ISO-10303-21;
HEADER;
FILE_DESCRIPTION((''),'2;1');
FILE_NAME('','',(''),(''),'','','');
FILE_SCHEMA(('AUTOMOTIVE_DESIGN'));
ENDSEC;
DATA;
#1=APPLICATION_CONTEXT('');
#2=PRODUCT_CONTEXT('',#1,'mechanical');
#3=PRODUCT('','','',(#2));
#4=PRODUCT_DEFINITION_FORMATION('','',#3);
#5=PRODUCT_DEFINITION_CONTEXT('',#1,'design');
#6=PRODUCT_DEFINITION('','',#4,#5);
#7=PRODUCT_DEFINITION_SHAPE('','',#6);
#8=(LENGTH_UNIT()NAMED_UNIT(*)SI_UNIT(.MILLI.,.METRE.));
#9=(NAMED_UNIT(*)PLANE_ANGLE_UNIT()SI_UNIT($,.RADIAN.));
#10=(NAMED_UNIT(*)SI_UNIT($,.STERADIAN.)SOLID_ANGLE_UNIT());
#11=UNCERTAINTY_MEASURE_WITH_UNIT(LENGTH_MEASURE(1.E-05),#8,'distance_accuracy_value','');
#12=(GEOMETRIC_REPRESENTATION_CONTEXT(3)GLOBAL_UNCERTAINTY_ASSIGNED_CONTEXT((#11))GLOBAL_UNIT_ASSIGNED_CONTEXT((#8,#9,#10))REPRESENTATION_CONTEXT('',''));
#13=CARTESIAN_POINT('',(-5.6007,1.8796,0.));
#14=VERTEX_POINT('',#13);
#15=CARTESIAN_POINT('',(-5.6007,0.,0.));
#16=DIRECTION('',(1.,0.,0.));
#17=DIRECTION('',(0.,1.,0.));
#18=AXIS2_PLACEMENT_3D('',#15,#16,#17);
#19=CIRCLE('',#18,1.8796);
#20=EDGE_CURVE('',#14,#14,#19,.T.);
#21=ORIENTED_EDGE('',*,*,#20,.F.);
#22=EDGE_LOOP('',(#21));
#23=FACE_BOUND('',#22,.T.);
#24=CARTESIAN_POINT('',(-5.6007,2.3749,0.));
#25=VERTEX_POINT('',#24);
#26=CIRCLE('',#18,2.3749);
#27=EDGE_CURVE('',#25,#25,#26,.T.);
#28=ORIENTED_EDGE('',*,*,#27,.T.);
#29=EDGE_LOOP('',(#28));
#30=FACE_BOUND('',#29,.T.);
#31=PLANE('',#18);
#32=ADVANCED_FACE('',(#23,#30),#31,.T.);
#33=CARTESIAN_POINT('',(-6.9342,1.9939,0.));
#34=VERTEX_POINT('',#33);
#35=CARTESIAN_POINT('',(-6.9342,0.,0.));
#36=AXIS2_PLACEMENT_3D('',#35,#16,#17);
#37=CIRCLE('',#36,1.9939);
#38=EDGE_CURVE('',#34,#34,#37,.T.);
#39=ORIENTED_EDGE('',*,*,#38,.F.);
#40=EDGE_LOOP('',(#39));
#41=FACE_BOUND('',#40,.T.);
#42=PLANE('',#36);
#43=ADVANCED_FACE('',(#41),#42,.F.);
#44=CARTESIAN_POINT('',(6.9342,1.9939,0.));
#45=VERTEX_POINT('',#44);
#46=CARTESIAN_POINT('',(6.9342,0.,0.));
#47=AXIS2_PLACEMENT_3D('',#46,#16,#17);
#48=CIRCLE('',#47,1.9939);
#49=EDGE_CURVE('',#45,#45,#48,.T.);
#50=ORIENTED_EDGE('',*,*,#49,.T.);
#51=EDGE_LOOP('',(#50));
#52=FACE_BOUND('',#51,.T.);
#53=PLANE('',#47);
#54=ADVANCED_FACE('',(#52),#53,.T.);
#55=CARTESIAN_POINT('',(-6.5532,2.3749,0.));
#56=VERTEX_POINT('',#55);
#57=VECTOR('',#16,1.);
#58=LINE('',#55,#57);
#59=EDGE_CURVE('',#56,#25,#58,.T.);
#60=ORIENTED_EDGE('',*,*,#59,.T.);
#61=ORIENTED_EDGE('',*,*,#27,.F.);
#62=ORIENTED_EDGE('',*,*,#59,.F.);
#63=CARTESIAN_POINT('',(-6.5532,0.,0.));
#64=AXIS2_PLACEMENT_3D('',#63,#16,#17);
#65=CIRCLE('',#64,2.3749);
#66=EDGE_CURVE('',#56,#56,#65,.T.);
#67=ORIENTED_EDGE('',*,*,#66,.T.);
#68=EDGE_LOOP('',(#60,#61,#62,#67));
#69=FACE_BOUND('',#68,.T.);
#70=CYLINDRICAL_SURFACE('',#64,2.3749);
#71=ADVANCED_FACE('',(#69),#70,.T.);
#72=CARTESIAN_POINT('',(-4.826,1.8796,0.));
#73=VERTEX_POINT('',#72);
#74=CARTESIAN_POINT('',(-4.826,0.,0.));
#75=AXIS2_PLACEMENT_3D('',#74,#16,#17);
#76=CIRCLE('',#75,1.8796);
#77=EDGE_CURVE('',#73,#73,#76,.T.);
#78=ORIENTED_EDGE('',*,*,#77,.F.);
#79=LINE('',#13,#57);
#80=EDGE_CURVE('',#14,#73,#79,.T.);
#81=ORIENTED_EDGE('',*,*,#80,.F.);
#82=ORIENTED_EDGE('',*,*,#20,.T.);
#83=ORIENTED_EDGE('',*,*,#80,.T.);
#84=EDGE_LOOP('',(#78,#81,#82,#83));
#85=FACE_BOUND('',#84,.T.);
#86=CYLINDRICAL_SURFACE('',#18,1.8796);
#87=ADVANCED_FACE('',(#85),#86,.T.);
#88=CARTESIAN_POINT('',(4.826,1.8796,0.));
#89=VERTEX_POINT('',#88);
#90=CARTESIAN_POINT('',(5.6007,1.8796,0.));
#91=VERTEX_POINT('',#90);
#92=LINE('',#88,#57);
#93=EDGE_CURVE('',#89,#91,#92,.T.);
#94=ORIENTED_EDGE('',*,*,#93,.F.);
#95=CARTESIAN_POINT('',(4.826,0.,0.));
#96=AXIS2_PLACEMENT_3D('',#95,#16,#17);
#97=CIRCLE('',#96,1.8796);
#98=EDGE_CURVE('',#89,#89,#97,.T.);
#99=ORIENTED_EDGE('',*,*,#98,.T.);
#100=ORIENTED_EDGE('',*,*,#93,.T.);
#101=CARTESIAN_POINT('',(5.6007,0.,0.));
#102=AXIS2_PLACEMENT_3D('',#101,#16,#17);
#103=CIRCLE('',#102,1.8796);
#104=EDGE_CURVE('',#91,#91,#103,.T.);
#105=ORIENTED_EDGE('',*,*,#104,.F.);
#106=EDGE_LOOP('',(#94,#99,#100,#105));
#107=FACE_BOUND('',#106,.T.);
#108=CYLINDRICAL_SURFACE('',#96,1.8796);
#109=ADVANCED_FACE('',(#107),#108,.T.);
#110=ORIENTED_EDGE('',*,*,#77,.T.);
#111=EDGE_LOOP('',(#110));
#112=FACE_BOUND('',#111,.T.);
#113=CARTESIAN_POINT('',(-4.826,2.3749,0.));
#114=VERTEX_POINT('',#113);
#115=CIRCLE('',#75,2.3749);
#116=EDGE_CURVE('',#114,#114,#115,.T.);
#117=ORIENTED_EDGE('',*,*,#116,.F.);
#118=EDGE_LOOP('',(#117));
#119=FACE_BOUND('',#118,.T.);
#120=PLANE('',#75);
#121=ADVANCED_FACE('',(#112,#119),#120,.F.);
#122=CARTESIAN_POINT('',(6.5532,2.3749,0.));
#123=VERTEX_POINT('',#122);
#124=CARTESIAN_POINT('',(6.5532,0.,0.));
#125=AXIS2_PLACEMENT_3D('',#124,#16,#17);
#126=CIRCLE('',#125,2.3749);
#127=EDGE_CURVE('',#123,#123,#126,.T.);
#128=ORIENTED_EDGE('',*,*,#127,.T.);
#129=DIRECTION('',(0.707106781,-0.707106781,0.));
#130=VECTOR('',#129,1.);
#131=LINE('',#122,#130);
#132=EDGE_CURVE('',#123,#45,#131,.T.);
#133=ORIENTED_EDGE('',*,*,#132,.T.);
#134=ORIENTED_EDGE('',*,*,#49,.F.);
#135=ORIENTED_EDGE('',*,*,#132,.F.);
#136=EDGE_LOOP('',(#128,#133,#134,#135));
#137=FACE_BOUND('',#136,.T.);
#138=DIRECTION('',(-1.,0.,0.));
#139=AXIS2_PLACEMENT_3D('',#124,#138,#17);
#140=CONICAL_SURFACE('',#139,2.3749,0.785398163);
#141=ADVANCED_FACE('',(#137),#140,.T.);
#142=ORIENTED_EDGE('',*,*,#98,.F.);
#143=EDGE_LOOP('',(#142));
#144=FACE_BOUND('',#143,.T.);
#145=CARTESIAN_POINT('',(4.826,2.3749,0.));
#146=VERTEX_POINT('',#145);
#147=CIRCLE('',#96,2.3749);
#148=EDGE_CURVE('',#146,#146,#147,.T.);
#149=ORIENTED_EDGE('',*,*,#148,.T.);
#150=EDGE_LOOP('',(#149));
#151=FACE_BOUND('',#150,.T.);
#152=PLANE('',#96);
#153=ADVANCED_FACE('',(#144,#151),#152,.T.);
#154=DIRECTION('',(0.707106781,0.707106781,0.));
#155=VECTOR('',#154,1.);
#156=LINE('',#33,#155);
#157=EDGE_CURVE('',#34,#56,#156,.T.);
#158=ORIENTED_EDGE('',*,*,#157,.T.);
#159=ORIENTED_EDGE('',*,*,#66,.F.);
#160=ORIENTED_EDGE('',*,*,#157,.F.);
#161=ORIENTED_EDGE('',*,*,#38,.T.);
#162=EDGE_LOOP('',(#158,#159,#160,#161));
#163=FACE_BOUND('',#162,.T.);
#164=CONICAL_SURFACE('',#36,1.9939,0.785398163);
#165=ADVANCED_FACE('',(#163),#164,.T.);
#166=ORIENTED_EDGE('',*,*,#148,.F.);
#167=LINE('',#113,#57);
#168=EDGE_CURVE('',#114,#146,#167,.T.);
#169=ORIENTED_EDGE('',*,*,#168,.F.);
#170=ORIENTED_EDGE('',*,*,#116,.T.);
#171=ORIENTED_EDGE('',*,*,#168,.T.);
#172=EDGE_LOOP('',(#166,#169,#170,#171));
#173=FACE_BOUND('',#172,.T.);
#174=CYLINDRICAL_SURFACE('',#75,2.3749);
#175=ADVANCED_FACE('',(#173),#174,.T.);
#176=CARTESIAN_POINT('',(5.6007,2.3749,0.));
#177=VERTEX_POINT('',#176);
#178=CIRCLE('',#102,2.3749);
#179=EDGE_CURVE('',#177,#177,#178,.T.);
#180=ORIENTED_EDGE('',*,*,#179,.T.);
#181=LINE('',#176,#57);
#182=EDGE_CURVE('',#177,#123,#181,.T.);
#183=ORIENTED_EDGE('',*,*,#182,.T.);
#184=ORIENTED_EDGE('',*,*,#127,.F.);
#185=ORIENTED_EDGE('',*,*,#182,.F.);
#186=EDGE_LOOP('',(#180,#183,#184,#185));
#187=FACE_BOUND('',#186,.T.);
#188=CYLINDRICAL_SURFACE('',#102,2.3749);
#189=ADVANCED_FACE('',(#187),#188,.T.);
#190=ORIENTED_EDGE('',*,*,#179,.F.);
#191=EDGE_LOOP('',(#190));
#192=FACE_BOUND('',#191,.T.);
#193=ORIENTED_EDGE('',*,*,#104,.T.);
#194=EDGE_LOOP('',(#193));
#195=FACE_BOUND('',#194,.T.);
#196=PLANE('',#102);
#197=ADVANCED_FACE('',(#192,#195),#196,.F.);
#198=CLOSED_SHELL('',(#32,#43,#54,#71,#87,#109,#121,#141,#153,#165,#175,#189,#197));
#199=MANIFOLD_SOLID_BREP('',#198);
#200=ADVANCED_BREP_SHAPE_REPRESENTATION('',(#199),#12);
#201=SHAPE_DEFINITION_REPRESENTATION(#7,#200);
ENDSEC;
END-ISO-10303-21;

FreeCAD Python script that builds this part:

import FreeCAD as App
import Part
import Sketcher
from FreeCAD import Vector
Q = App.Units.Quantity


def add_polygon(sketch, points):
    """Adds a closed chain of lines whose ends are joined by coincident constraints."""
    first, n = sketch.GeometryCount, len(points)
    for a, b in zip(points, points[1:] + points[:1]):
        sketch.addGeometry(Part.LineSegment(App.Vector(*a, 0), App.Vector(*b, 0)), False)
    for i in range(n):
        sketch.addConstraint(Sketcher.Constraint("Coincident", first + i, 2, first + (i + 1) % n, 1))

doc = App.newDocument("Part")
body = doc.addObject("PartDesign::Body", "Body")

# Sketch on XY plane
sketch1 = body.newObject("Sketcher::SketchObject", "Sketch")
sketch1.AttachmentSupport = (doc.getObject("XY_Plane"), [""])
sketch1.MapMode = "FlatFace"
add_polygon(sketch1, [(-6.9342, 0), (6.9342, 0), (6.9342, 1.9939), (6.5532, 2.3749), (5.6007, 2.3749), (5.6007, 1.8796), (4.826, 1.8796), (4.826, 2.3749), (-4.826, 2.3749), (-4.826, 1.8796), (-5.6007, 1.8796), (-5.6007, 2.3749), (-6.5532, 2.3749), (-6.9342, 1.9939)])  # lines 0-13
sketch1.addConstraint([
    Sketcher.Constraint("Horizontal", 0),
    Sketcher.Constraint("Vertical", 1),
    Sketcher.Constraint("Horizontal", 3),
    Sketcher.Constraint("Vertical", 4),
    Sketcher.Constraint("Horizontal", 5),
    Sketcher.Constraint("Vertical", 6),
    Sketcher.Constraint("Horizontal", 7),
    Sketcher.Constraint("Vertical", 8),
    Sketcher.Constraint("Horizontal", 9),
    Sketcher.Constraint("Vertical", 10),
    Sketcher.Constraint("Horizontal", 11),
    Sketcher.Constraint("Vertical", 13),
    Sketcher.Constraint("Symmetric", 0, 2, 13, 2, -1, 1),
    Sketcher.Constraint("Symmetric", 5, 2, 8, 2, -2),
    Sketcher.Constraint("Symmetric", 3, 2, 10, 2, -2),
    Sketcher.Constraint("Perpendicular", 2, 12),
    Sketcher.Constraint("Horizontal", 3, 2, 6, 2),
    Sketcher.Constraint("Horizontal", 1, 2, 12, 2),
    Sketcher.Constraint("Equal", 3, 11),
    Sketcher.Constraint("DistanceX", 7, 2, 7, 1, Q("0.38 in")),
    Sketcher.Constraint("DistanceX", 0, 1, 0, 2, Q("0.546 in")),
    Sketcher.Constraint("DistanceX", 3, 2, 3, 1, Q("0.0375 in")),
    Sketcher.Constraint("DistanceX", 5, 2, 5, 1, Q("0.0305 in")),
    Sketcher.Constraint("DistanceY", 1, 1, 1, 2, Q("0.0785 in")),
    Sketcher.Constraint("DistanceY", 4, 2, 4, 1, Q("0.0195 in")),
])
revolution = body.newObject("PartDesign::Revolution", "Revolution")
revolution.Profile = sketch1
revolution.ReferenceAxis = (sketch1, ["H_Axis"])
revolution.Angle = 360

doc.recompute()
